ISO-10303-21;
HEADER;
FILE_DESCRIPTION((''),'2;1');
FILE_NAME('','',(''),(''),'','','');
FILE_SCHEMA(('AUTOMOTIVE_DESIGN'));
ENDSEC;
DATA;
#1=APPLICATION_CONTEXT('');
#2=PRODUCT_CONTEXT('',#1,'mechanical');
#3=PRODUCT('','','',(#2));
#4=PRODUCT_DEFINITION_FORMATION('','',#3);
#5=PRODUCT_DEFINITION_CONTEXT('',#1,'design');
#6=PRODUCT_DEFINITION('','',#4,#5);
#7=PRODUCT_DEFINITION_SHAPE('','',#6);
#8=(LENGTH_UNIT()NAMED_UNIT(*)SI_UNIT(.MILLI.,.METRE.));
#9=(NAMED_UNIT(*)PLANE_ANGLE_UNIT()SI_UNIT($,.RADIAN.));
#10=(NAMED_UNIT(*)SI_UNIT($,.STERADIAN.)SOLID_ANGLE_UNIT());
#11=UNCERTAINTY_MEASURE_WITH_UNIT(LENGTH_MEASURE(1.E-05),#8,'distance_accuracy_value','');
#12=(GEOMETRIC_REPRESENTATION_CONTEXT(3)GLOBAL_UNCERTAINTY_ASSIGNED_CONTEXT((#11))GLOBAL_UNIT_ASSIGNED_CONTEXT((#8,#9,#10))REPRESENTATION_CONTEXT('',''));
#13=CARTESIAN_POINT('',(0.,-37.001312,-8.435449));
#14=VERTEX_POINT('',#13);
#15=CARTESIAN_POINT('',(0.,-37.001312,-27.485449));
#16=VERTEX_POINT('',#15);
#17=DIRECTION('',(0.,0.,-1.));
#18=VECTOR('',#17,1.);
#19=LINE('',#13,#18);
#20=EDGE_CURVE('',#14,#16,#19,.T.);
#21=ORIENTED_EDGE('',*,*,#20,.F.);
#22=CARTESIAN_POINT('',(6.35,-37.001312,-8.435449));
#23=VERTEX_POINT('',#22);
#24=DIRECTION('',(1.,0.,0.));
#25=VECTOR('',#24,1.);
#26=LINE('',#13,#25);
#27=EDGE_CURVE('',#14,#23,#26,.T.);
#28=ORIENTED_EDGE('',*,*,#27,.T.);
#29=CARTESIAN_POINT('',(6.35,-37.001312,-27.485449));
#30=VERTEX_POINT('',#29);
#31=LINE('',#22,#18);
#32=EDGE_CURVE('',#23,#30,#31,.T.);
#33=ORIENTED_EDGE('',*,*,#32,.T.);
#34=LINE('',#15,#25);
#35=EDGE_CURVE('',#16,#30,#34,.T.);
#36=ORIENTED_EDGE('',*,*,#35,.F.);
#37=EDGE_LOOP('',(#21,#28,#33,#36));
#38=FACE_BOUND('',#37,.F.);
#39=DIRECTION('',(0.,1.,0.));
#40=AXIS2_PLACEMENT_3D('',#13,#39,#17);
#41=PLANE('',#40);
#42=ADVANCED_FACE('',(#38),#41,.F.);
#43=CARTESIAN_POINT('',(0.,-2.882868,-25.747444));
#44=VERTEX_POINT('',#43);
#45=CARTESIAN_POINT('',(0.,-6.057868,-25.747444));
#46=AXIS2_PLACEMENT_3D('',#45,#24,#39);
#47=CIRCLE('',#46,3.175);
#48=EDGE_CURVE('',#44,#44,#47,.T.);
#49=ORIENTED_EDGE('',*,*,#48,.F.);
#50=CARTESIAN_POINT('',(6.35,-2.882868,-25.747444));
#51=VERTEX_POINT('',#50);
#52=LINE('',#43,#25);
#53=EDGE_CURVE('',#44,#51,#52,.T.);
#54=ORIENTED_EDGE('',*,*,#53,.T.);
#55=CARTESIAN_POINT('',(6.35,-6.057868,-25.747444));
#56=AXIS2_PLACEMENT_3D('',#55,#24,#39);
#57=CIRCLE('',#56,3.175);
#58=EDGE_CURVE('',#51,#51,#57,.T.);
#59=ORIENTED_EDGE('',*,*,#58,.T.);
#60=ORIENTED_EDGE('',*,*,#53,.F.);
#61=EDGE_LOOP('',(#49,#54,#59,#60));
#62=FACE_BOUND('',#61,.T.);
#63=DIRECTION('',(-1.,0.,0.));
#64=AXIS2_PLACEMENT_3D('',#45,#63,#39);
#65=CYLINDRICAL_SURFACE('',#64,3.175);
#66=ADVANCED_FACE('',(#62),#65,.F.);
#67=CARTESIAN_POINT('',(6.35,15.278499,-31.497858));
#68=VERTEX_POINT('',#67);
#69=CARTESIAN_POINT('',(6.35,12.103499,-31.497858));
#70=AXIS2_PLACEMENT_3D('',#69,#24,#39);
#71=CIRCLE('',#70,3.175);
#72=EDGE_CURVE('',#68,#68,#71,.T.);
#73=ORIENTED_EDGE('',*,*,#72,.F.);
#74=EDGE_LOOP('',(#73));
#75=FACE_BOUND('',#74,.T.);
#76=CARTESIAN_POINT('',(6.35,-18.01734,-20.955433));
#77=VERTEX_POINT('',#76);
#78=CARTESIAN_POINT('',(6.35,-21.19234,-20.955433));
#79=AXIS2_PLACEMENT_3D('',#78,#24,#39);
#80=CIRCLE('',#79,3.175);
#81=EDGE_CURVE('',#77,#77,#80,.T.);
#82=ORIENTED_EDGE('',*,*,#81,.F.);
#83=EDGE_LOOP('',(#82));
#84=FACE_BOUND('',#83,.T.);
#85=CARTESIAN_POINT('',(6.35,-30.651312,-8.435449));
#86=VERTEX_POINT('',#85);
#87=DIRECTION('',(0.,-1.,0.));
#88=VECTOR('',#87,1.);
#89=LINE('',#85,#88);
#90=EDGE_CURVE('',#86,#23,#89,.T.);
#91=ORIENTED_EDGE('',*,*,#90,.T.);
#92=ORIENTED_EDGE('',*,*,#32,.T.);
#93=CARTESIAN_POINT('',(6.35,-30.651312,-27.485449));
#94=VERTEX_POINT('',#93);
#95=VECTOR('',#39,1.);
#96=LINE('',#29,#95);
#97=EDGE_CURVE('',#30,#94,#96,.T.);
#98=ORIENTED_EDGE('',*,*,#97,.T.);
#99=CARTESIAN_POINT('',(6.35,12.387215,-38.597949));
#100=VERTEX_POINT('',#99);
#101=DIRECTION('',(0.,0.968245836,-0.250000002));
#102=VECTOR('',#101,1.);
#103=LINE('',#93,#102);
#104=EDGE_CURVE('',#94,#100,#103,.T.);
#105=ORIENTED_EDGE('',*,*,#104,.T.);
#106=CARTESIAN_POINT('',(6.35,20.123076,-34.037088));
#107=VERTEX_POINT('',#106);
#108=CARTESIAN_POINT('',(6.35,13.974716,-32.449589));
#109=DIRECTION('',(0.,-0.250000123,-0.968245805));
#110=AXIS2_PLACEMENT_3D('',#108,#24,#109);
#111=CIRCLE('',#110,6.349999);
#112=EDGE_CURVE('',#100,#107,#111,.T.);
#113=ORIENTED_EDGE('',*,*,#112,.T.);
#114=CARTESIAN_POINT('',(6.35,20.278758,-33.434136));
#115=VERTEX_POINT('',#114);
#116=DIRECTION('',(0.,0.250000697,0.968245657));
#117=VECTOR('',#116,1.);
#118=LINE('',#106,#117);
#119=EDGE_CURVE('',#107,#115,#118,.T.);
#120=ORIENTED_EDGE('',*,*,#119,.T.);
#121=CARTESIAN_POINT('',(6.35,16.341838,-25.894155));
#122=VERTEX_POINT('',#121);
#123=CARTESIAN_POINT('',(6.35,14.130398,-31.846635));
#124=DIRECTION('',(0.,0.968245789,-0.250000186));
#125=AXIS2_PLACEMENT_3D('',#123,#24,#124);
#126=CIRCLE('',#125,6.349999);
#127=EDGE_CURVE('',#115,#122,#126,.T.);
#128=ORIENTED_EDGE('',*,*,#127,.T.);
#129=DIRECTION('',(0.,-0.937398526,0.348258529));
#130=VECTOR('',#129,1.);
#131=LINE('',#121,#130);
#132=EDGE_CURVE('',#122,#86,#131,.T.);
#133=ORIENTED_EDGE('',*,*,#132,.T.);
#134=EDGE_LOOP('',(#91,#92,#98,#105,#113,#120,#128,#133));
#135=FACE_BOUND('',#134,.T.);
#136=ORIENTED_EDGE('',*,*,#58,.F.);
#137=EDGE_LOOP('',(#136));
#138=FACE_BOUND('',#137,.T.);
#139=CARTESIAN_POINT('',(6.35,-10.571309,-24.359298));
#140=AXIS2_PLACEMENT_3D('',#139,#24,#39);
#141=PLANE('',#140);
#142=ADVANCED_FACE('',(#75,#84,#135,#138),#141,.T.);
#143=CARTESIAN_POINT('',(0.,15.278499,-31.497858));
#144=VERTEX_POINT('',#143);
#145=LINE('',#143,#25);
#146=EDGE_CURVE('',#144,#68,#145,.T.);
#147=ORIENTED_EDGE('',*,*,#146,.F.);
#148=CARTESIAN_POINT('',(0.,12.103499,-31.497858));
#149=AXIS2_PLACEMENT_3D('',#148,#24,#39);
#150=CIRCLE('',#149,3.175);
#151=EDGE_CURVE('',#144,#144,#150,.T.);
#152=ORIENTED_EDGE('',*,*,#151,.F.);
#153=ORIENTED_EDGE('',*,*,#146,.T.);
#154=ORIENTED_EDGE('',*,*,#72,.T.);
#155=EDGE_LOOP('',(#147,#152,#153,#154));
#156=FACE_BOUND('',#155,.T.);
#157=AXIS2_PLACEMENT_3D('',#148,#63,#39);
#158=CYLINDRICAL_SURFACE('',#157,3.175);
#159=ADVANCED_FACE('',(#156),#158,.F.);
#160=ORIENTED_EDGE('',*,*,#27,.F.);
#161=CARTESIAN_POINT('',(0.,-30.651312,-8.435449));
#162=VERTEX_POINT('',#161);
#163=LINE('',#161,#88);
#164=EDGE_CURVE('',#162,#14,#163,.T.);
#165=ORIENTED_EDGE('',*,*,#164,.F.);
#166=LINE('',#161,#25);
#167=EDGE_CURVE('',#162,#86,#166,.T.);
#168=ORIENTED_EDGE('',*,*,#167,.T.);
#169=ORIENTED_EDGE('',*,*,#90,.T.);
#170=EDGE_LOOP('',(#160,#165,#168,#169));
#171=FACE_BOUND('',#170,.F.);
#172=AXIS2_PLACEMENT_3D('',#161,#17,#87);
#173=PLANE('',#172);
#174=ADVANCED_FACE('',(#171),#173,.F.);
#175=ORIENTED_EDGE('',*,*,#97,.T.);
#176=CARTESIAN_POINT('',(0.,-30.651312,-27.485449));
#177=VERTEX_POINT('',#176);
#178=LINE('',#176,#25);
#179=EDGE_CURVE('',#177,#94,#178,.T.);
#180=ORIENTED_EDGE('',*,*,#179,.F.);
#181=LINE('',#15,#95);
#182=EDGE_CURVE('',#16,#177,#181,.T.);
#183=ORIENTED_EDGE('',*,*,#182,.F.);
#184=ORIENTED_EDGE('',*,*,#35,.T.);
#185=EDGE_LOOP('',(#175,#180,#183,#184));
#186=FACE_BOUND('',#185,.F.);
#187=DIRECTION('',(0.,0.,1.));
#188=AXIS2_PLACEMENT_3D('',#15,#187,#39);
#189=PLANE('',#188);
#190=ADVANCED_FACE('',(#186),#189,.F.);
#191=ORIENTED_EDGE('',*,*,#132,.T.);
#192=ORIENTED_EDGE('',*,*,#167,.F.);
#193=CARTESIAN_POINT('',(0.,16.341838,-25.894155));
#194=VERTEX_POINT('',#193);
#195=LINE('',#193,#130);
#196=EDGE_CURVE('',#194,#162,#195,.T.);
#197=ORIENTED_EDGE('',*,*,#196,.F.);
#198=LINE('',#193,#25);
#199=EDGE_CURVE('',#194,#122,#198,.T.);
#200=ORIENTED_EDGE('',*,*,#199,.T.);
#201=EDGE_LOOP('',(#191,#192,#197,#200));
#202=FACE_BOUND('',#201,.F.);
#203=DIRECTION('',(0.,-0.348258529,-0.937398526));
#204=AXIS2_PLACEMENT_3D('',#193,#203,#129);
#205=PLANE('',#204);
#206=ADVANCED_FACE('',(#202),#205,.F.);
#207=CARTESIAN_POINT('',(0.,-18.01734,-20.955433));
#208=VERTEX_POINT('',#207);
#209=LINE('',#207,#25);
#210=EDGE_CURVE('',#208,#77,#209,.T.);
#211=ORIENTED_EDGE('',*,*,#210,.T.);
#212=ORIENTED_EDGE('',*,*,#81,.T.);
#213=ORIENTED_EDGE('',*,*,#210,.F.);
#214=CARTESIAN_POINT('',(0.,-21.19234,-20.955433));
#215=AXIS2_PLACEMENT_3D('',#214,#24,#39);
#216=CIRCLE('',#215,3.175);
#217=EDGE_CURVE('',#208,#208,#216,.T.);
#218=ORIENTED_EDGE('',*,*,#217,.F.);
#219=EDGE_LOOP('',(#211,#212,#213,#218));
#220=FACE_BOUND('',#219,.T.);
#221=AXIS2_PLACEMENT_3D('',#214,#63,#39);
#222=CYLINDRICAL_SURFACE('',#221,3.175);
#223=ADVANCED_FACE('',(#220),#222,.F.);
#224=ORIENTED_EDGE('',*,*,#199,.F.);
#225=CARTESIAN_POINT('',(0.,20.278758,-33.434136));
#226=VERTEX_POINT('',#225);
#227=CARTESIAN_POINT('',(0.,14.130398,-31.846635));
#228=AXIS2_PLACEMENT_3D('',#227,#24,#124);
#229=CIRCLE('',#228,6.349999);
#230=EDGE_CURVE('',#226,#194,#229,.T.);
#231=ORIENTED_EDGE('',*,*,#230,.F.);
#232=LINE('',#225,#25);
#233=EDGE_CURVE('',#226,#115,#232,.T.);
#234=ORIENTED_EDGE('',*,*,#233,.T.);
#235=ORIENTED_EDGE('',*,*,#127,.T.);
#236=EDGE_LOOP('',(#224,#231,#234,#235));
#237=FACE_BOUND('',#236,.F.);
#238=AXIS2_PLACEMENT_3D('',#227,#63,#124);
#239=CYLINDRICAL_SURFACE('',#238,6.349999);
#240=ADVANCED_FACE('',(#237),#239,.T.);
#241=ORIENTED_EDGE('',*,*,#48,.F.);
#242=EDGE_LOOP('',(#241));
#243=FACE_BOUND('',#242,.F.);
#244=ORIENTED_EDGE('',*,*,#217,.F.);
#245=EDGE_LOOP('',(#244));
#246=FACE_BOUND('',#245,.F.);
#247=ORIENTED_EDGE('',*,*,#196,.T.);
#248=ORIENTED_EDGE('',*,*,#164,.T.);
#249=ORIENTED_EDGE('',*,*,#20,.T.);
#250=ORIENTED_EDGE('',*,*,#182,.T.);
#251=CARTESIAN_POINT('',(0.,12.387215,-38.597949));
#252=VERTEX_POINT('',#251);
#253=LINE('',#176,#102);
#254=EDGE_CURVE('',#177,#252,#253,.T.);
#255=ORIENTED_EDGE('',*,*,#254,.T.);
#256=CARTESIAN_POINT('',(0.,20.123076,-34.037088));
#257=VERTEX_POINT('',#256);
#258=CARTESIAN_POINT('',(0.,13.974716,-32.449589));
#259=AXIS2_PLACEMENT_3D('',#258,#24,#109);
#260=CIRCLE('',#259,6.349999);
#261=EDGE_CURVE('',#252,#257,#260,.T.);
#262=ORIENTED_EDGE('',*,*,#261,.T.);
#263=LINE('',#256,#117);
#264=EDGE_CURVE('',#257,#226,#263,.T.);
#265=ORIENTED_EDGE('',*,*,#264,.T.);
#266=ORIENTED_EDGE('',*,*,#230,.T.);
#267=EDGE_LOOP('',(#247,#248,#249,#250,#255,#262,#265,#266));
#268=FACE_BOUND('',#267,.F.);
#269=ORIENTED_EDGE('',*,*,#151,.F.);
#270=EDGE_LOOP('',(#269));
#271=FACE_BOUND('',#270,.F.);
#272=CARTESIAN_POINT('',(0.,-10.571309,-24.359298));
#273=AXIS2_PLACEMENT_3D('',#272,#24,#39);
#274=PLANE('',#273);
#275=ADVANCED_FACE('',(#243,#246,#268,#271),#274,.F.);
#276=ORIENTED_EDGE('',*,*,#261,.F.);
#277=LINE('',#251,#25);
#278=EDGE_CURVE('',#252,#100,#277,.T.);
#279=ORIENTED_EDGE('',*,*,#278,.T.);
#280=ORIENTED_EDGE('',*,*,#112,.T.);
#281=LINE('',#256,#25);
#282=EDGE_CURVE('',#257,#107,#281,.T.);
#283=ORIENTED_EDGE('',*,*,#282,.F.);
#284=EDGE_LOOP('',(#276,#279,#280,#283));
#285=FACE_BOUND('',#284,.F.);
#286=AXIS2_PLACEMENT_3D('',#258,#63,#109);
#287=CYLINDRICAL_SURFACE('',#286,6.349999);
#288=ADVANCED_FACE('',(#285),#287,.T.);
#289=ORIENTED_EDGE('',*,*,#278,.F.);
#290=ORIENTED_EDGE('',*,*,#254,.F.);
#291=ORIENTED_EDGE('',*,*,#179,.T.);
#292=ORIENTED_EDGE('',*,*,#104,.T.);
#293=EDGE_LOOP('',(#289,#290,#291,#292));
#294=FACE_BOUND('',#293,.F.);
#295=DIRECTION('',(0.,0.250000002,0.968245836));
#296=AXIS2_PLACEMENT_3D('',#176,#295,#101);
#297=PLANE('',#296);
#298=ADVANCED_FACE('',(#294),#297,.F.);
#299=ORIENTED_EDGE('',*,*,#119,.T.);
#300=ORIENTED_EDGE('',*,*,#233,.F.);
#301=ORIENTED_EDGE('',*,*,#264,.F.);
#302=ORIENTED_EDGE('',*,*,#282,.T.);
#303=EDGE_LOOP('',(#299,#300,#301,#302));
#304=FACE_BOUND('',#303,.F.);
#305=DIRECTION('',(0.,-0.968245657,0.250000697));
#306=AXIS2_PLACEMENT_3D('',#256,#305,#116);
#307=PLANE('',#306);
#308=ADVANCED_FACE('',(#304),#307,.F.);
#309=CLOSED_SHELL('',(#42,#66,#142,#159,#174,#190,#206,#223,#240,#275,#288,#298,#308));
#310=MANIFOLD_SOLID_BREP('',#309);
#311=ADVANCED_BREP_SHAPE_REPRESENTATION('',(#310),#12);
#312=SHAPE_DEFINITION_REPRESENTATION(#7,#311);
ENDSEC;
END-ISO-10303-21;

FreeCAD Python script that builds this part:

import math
import FreeCAD as App
import Part
import Sketcher
from FreeCAD import Vector
Q = App.Units.Quantity

doc = App.newDocument("Part")
body = doc.addObject("PartDesign::Body", "Body")

sketch1 = body.newObject("Sketcher::SketchObject", "Sketch")
sketch1.AttachmentSupport = (doc.getObject("YZ_Plane"), [""])
sketch1.MapMode = "FlatFace"
sketch1.addGeometry(Part.LineSegment(Vector(-30.7, -8.4, 0), Vector(-37, -8.4, 0)), False)
sketch1.addGeometry(Part.LineSegment(Vector(-37, -8.4, 0), Vector(-37, -27.5, 0)), False)
sketch1.addGeometry(Part.LineSegment(Vector(-37, -27.5, 0), Vector(-30.7, -27.5, 0)), False)
sketch1.addGeometry(Part.LineSegment(Vector(-30.7, -27.5, 0), Vector(12.4, -38.6, 0)), False)
sketch1.addGeometry(Part.ArcOfCircle(Part.Circle(Vector(14, -32.4, 0), Vector(0, 0, 1), 6.3), math.radians(-104), math.radians(-14)), False)
sketch1.addGeometry(Part.LineSegment(Vector(20.1, -34, 0), Vector(20.3, -33.4, 0)), False)
sketch1.addGeometry(Part.ArcOfCircle(Part.Circle(Vector(14.1, -31.8, 0), Vector(0, 0, 1), 6.3), math.radians(-14), math.radians(70)), False)
sketch1.addGeometry(Part.LineSegment(Vector(16.3, -25.9, 0), Vector(-30.7, -8.4, 0)), False)
sketch1.addGeometry(Part.Circle(Vector(12.1, -31.5, 0), Vector(0, 0, 1), 3.2), False)
sketch1.addGeometry(Part.Circle(Vector(-6.1, -25.7, 0), Vector(0, 0, 1), 3.2), False)
sketch1.addGeometry(Part.Circle(Vector(-21.2, -21, 0), Vector(0, 0, 1), 3.2), False)
sketch1.addConstraint(Sketcher.Constraint("Coincident", 0, 2, 1, 1))
sketch1.addConstraint(Sketcher.Constraint("Coincident", 1, 2, 2, 1))
sketch1.addConstraint(Sketcher.Constraint("Coincident", 2, 2, 3, 1))
sketch1.addConstraint(Sketcher.Constraint("Tangent", 3, 2, 4, 1))
sketch1.addConstraint(Sketcher.Constraint("Tangent", 4, 2, 5, 1))
sketch1.addConstraint(Sketcher.Constraint("Tangent", 5, 2, 6, 1))
sketch1.addConstraint(Sketcher.Constraint("Tangent", 6, 2, 7, 1))
sketch1.addConstraint(Sketcher.Constraint("Coincident", 7, 2, 0, 1))
sketch1.addConstraint(Sketcher.Constraint("Horizontal", 0))
sketch1.addConstraint(Sketcher.Constraint("Vertical", 1))
sketch1.addConstraint(Sketcher.Constraint("Horizontal", 2))
sketch1.addConstraint(Sketcher.Constraint("Equal", 4, 6))
sketch1.addConstraint(Sketcher.Constraint("Equal", 8, 9))
sketch1.addConstraint(Sketcher.Constraint("Equal", 9, 10))
sketch1.addConstraint(Sketcher.Constraint("Perpendicular", 3, 5))
sketch1.addConstraint(Sketcher.Constraint("Vertical", 2, 2, 7, 2))
sketch1.addConstraint(Sketcher.Constraint("Diameter", 8, Q("0.25 in")))
sketch1.addConstraint(Sketcher.Constraint("Radius", 4, Q("0.25 in")))
sketch1.addConstraint(Sketcher.Constraint("DistanceX", 0, 2, 0, 1, Q("0.25 in")))
sketch1.addConstraint(Sketcher.Constraint("DistanceY", 1, 2, 1, 1, Q("0.75 in")))
sketch1.addConstraint(Sketcher.Constraint("Distance", 3, Q("1.75 in")))
sketch1.addConstraint(Sketcher.Constraint("DistanceX", 3, 2, 4, 3, Q("0.0625 in")))
sketch1.addConstraint(Sketcher.Constraint("DistanceX", -1, 1, 6, 3, 14.130398))
sketch1.addConstraint(Sketcher.Constraint("DistanceX", -1, 1, 8, 3, 12.103499))
sketch1.addConstraint(Sketcher.Constraint("DistanceY", 4, 3, -1, 1, 32.449589))
sketch1.addConstraint(Sketcher.Constraint("DistanceY", 8, 3, -1, 1, 31.497858))
sketch1.addConstraint(Sketcher.Constraint("DistanceX", 10, 3, -1, 1, 21.19234))
sketch1.addConstraint(Sketcher.Constraint("DistanceY", 6, 3, 9, 3, 6.099191))
sketch1.addConstraint(Sketcher.Constraint("DistanceY", 9, 3, 10, 3, 4.792011))
sketch1.addConstraint(Sketcher.Constraint("DistanceX", 0, 2, 10, 3, 15.808972))
sketch1.addConstraint(Sketcher.Constraint("DistanceX", 9, 3, -1, 1, 6.057868))
pad1 = body.newObject("PartDesign::Pad", "Pad")
pad1.Profile = sketch1
pad1.Length = Q("0.25 in")

doc.recompute()
